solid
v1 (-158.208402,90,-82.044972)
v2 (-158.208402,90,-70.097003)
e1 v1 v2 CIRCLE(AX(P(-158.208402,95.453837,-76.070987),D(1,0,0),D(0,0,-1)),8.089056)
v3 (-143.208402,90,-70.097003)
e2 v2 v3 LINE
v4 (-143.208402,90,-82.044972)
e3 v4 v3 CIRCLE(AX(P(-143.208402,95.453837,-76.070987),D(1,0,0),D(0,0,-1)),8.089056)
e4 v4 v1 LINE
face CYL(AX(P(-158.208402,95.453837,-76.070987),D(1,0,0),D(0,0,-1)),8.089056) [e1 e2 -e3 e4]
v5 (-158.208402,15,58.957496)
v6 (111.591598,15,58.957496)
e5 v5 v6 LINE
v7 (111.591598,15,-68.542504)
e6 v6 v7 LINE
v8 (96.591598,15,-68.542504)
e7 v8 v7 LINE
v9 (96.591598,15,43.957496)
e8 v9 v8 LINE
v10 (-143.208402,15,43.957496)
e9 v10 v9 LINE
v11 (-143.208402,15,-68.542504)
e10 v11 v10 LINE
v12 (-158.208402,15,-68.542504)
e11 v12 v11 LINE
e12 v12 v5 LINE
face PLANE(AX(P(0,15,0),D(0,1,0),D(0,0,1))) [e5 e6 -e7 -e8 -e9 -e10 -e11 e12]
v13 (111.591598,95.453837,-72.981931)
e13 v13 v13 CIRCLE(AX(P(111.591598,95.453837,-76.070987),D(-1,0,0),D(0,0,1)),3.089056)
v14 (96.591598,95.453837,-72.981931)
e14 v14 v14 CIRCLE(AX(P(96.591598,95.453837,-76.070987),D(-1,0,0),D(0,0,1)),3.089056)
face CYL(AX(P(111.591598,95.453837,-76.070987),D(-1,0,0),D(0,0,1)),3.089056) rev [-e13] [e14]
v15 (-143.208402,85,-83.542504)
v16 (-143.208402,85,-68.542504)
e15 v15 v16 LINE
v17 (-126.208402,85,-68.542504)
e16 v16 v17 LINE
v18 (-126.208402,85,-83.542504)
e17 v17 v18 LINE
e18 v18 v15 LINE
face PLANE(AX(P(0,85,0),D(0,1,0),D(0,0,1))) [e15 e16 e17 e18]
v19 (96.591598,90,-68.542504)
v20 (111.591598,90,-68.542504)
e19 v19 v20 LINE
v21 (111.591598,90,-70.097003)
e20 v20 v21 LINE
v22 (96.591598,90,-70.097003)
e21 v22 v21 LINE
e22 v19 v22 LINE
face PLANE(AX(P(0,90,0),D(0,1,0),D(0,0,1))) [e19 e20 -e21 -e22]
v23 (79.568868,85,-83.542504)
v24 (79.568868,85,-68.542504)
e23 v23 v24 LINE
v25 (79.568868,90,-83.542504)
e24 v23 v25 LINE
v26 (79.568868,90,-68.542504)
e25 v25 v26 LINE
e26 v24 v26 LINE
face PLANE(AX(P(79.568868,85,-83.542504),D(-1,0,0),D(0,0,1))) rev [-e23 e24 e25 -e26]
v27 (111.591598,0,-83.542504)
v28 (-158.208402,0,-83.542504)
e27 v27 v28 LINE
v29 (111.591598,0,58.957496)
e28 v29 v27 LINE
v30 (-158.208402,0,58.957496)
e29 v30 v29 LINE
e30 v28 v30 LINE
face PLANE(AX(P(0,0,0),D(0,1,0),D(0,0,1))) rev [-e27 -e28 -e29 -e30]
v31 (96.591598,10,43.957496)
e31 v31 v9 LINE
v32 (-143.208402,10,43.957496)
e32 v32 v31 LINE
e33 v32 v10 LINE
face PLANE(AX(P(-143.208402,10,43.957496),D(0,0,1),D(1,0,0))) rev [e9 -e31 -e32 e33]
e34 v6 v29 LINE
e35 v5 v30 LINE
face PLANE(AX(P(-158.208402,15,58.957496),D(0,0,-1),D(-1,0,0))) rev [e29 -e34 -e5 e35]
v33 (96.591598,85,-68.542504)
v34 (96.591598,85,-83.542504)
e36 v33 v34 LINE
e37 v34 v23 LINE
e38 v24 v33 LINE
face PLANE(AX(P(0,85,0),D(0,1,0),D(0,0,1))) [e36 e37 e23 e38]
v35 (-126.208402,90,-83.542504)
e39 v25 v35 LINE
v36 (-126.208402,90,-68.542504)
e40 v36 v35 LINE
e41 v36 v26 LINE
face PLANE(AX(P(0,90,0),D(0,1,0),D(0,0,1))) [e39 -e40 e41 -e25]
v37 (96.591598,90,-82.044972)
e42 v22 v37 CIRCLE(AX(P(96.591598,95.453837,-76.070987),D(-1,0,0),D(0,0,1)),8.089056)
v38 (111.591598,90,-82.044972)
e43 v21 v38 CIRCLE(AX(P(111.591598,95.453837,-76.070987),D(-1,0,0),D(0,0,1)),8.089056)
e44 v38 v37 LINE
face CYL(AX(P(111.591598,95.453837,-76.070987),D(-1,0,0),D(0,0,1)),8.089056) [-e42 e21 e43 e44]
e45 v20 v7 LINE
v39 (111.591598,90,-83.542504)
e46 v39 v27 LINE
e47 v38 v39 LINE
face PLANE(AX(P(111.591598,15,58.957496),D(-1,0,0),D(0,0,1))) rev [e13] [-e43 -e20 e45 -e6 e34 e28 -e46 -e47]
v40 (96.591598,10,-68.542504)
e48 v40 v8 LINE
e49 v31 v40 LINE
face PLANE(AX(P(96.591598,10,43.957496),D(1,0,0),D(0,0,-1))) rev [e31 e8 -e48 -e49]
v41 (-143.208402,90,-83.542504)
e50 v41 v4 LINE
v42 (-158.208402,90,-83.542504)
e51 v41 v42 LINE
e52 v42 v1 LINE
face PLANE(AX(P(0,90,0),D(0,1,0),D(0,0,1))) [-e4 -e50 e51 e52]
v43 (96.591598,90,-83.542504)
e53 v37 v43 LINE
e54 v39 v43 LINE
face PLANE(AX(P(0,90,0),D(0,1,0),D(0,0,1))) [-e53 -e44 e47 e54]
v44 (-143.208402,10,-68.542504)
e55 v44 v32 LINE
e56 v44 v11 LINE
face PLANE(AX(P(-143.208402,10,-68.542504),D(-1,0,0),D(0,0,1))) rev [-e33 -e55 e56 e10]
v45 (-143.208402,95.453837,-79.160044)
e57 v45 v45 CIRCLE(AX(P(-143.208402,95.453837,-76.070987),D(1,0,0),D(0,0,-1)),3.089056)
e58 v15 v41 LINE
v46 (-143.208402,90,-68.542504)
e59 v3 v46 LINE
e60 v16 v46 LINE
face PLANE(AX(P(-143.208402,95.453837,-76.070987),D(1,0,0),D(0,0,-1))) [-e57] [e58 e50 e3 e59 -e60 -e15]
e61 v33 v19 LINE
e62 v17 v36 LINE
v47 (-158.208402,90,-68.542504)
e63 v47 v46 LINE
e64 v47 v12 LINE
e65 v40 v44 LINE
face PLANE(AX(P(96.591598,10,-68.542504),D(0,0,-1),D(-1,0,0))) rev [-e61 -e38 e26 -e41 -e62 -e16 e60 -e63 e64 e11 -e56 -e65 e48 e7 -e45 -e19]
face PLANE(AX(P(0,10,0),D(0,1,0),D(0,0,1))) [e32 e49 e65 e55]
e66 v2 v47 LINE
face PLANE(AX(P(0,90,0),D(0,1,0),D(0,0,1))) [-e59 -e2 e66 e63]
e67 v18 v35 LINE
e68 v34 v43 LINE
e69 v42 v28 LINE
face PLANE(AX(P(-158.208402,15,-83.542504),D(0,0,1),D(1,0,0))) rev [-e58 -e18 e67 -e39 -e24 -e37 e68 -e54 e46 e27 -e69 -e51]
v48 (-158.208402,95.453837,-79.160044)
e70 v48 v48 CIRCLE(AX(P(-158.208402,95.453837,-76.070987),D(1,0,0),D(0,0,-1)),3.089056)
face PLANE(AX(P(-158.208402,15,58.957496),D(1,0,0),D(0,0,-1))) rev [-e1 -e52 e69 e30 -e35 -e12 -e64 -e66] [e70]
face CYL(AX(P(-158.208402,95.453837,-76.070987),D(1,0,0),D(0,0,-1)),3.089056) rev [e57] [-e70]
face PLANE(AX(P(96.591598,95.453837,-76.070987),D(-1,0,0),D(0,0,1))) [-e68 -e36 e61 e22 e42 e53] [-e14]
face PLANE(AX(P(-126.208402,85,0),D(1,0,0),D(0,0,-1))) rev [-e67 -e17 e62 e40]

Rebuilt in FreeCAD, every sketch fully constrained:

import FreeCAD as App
import Part
import Sketcher

V = App.Vector

doc = App.newDocument("Part")
body = doc.addObject("PartDesign::Body", "Body")

sketch1 = body.newObject("Sketcher::SketchObject", "Sketch")
sketch1.AttachmentSupport = (doc.getObject("XZ_Plane"), [""])
sketch1.MapMode = "FlatFace"
sketch1.addGeometry([
    Part.LineSegment(V(-158, -84, 0), V(-158, 59, 0)),
    Part.LineSegment(V(-158, 59, 0), V(112, 59, 0)),
    Part.LineSegment(V(112, 59, 0), V(112, -84, 0)),
    Part.LineSegment(V(112, -84, 0), V(-158, -84, 0)),
], False)
sketch1.addConstraint([
    Sketcher.Constraint("Coincident", 0, 2, 1, 1),
    Sketcher.Constraint("Coincident", 1, 2, 2, 1),
    Sketcher.Constraint("Coincident", 2, 2, 3, 1),
    Sketcher.Constraint("Coincident", 3, 2, 0, 1),
    Sketcher.Constraint("Vertical", 0),
    Sketcher.Constraint("Horizontal", 1),
    Sketcher.Constraint("Vertical", 2),
    Sketcher.Constraint("Horizontal", 3),
    Sketcher.Constraint("DistanceX", 1, 1, 1, 2, 269.8),
    Sketcher.Constraint("DistanceY", 0, 1, 0, 2, 142.5),
    Sketcher.Constraint("DistanceX", 0, 2, -1, 1, 158.208402),
    Sketcher.Constraint("DistanceY", -1, 1, 0, 2, 58.957496),
])
pad1 = body.newObject("PartDesign::Pad", "Pad")
pad1.Profile = sketch1
pad1.Length = 15
pad1.Reversed = True

sketch2 = body.newObject("Sketcher::SketchObject", "Sketch001")
sketch2.AttachmentSupport = (doc.getObject("XZ_Plane"), [""])
sketch2.MapMode = "FlatFace"
sketch2.AttachmentOffset = App.Placement(V(0, 0, -15), App.Rotation())
sketch2.addGeometry([
    Part.LineSegment(V(-143, -69, 0), V(-143, 44, 0)),
    Part.LineSegment(V(-143, 44, 0), V(97, 44, 0)),
    Part.LineSegment(V(97, 44, 0), V(97, -69, 0)),
    Part.LineSegment(V(97, -69, 0), V(-143, -69, 0)),
], False)
sketch2.addConstraint([
    Sketcher.Constraint("Coincident", 0, 2, 1, 1),
    Sketcher.Constraint("Coincident", 1, 2, 2, 1),
    Sketcher.Constraint("Coincident", 2, 2, 3, 1),
    Sketcher.Constraint("Coincident", 3, 2, 0, 1),
    Sketcher.Constraint("Vertical", 0),
    Sketcher.Constraint("Horizontal", 1),
    Sketcher.Constraint("Vertical", 2),
    Sketcher.Constraint("Horizontal", 3),
    Sketcher.Constraint("DistanceX", 1, 1, 1, 2, 239.8),
    Sketcher.Constraint("DistanceY", 0, 1, 0, 2, 112.5),
    Sketcher.Constraint("DistanceX", 0, 2, -1, 1, 143.208402),
    Sketcher.Constraint("DistanceY", -1, 1, 0, 2, 43.957496),
])
pocket1 = body.newObject("PartDesign::Pocket", "Pocket")
pocket1.Profile = sketch2
pocket1.Length = 5
pocket1.Reversed = True

sketch3 = body.newObject("Sketcher::SketchObject", "Sketch002")
sketch3.AttachmentSupport = (doc.getObject("XZ_Plane"), [""])
sketch3.MapMode = "FlatFace"
sketch3.AttachmentOffset = App.Placement(V(0, 0, -15), App.Rotation())
sketch3.addGeometry([
    Part.LineSegment(V(-158, -69, 0), V(112, -69, 0)),
    Part.LineSegment(V(112, -69, 0), V(112, -84, 0)),
    Part.LineSegment(V(112, -84, 0), V(-158, -84, 0)),
    Part.LineSegment(V(-158, -84, 0), V(-158, -69, 0)),
], False)
sketch3.addConstraint([
    Sketcher.Constraint("Coincident", 0, 2, 1, 1),
    Sketcher.Constraint("Coincident", 1, 2, 2, 1),
    Sketcher.Constraint("Coincident", 2, 2, 3, 1),
    Sketcher.Constraint("Coincident", 3, 2, 0, 1),
    Sketcher.Constraint("Horizontal", 0),
    Sketcher.Constraint("Vertical", 1),
    Sketcher.Constraint("Horizontal", 2),
    Sketcher.Constraint("Vertical", 3),
    Sketcher.Constraint("DistanceY", 1, 2, 1, 1, 15.0),
    Sketcher.Constraint("DistanceX", 0, 1, 0, 2, 269.8),
    Sketcher.Constraint("DistanceX", -1, 1, 0, 2, 111.591598),
    Sketcher.Constraint("DistanceY", 0, 2, -1, 1, 68.542504),
])
pad2 = body.newObject("PartDesign::Pad", "Pad001")
pad2.Profile = sketch3
pad2.Length = 75
pad2.Reversed = True

sketch4 = body.newObject("Sketcher::SketchObject", "Sketch003")
sketch4.AttachmentSupport = (doc.getObject("YZ_Plane"), [""])
sketch4.MapMode = "FlatFace"
sketch4.AttachmentOffset = App.Placement(V(0, 0, -143.208402), App.Rotation())
sketch4.addGeometry([
    Part.Circle(V(95.5, -76.1, 0), V(0, 0, 1), 8.1),
    Part.Circle(V(95.5, -76.1, 0), V(0, 0, 1), 3.1),
], False)
sketch4.addConstraint([
    Sketcher.Constraint("Coincident", 1, 3, 0, 3),
    Sketcher.Constraint("Diameter", 0, 16.178112),
    Sketcher.Constraint("Diameter", 1, 6.178112),
    Sketcher.Constraint("DistanceX", -1, 1, 0, 3, 95.453837),
    Sketcher.Constraint("DistanceY", 0, 3, -1, 1, 76.070987),
])
pad3 = body.newObject("PartDesign::Pad", "Pad002")
pad3.Profile = sketch4
pad3.Length = 15
pad3.Reversed = True

sketch5 = body.newObject("Sketcher::SketchObject", "Sketch004")
sketch5.AttachmentSupport = (doc.getObject("YZ_Plane"), [""])
sketch5.MapMode = "FlatFace"
sketch5.AttachmentOffset = App.Placement(V(0, 0, 96.591598), App.Rotation())
sketch5.addGeometry([
    Part.Circle(V(95.5, -76.1, 0), V(0, 0, 1), 8.1),
    Part.Circle(V(95.5, -76.1, 0), V(0, 0, 1), 3.1),
], False)
sketch5.addConstraint([
    Sketcher.Constraint("Coincident", 1, 3, 0, 3),
    Sketcher.Constraint("Diameter", 0, 16.178112),
    Sketcher.Constraint("Diameter", 1, 6.178112),
    Sketcher.Constraint("DistanceX", -1, 1, 0, 3, 95.453837),
    Sketcher.Constraint("DistanceY", 0, 3, -1, 1, 76.070987),
])
pad4 = body.newObject("PartDesign::Pad", "Pad003")
pad4.Profile = sketch5
pad4.Length = 15

sketch6 = body.newObject("Sketcher::SketchObject", "Sketch005")
sketch6.AttachmentSupport = (doc.getObject("XZ_Plane"), [""])
sketch6.MapMode = "FlatFace"
sketch6.AttachmentOffset = App.Placement(V(0, 0, -90), App.Rotation())
sketch6.addGeometry([
    Part.LineSegment(V(-126, -84, 0), V(-143, -84, 0)),
    Part.LineSegment(V(-143, -84, 0), V(-143, -69, 0)),
    Part.LineSegment(V(-143, -69, 0), V(-126, -69, 0)),
    Part.LineSegment(V(-126, -69, 0), V(-126, -84, 0)),
    Part.LineSegment(V(80, -84, 0), V(80, -69, 0)),
    Part.LineSegment(V(80, -69, 0), V(97, -69, 0)),
    Part.LineSegment(V(97, -69, 0), V(97, -84, 0)),
    Part.LineSegment(V(97, -84, 0), V(80, -84, 0)),
], False)
sketch6.addConstraint([
    Sketcher.Constraint("Coincident", 0, 2, 1, 1),
    Sketcher.Constraint("Coincident", 1, 2, 2, 1),
    Sketcher.Constraint("Coincident", 2, 2, 3, 1),
    Sketcher.Constraint("Coincident", 3, 2, 0, 1),
    Sketcher.Constraint("Coincident", 4, 2, 5, 1),
    Sketcher.Constraint("Coincident", 5, 2, 6, 1),
    Sketcher.Constraint("Coincident", 6, 2, 7, 1),
    Sketcher.Constraint("Coincident", 7, 2, 4, 1),
    Sketcher.Constraint("Horizontal", 0),
    Sketcher.Constraint("Vertical", 1),
    Sketcher.Constraint("Horizontal", 2),
    Sketcher.Constraint("Vertical", 3),
    Sketcher.Constraint("Vertical", 4),
    Sketcher.Constraint("Horizontal", 5),
    Sketcher.Constraint("Vertical", 6),
    Sketcher.Constraint("Horizontal", 7),
    Sketcher.Constraint("Horizontal", 2, 2, 4, 2),
    Sketcher.Constraint("Horizontal", 3, 2, 6, 2),
    Sketcher.Constraint("DistanceX", 0, 2, 0, 1, 17.0),
    Sketcher.Constraint("DistanceY", 1, 1, 1, 2, 15.0),
    Sketcher.Constraint("DistanceX", 2, 2, 5, 2, 222.8),
    Sketcher.Constraint("DistanceX", 5, 1, 5, 2, 17.02273),
    Sketcher.Constraint("DistanceX", 0, 2, -1, 1, 143.208402),
    Sketcher.Constraint("DistanceY", 0, 2, -1, 1, 83.542504),
])
pocket2 = body.newObject("PartDesign::Pocket", "Pocket001")
pocket2.Profile = sketch6
pocket2.Length = 5
pocket2.Reversed = True

doc.recompute()
